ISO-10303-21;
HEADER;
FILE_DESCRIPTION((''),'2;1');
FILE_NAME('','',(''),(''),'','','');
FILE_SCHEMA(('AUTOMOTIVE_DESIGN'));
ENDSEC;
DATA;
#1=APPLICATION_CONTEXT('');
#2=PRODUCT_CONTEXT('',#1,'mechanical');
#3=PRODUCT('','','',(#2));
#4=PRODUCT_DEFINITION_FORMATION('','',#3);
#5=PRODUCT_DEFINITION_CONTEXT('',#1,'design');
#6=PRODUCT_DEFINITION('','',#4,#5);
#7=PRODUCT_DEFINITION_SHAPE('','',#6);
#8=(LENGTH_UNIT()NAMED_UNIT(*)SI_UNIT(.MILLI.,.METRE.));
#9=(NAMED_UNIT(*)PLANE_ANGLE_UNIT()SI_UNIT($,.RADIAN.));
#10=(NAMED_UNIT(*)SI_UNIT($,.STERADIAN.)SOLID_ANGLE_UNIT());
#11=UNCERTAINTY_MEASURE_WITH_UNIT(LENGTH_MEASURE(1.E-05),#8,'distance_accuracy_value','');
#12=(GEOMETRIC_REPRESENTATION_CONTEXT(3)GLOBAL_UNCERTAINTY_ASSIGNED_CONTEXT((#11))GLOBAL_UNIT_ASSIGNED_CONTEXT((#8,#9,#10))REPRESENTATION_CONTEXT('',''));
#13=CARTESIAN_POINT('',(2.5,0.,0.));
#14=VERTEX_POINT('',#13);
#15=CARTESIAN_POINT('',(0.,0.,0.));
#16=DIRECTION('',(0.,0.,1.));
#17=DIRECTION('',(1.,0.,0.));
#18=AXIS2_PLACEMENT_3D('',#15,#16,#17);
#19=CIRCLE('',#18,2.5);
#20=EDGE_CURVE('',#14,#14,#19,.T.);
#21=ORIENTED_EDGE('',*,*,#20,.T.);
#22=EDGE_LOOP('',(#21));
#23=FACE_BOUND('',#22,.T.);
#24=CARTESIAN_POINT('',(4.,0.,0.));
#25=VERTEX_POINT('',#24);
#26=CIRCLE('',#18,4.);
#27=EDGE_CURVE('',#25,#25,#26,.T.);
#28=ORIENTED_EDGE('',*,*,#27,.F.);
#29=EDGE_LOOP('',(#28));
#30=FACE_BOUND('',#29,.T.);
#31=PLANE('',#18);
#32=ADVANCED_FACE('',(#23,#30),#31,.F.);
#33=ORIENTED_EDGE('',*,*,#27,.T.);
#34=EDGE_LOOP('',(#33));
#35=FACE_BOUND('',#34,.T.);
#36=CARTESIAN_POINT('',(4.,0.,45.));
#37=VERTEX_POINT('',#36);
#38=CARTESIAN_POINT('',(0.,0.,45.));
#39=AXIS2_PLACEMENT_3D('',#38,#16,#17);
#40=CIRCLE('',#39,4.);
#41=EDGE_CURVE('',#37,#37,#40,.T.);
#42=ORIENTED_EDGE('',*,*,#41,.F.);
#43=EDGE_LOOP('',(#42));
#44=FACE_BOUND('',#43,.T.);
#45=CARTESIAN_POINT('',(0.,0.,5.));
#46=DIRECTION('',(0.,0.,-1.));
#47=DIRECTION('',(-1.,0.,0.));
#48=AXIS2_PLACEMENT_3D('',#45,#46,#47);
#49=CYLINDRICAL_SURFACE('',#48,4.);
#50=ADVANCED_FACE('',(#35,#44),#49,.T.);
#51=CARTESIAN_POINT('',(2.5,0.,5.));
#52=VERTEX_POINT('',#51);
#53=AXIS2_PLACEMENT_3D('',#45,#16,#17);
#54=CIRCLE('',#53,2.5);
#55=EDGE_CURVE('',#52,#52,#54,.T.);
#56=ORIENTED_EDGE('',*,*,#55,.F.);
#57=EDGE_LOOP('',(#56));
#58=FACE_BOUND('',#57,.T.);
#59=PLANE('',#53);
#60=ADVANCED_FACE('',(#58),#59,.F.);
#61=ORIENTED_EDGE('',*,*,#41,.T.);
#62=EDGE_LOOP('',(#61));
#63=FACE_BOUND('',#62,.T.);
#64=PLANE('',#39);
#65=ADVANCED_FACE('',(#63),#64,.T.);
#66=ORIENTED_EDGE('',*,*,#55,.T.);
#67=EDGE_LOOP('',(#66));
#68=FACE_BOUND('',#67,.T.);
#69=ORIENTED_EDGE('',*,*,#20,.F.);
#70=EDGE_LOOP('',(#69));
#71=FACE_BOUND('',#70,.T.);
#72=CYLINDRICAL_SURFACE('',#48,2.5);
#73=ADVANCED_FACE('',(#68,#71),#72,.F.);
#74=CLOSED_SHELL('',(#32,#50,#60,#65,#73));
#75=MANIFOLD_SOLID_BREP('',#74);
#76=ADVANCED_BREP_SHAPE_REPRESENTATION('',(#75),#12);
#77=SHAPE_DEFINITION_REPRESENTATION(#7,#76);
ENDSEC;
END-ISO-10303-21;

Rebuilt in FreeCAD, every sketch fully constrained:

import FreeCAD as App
import Part
import Sketcher

V = App.Vector
Q = App.Units.Quantity

doc = App.newDocument("Part")
params = doc.addObject("Spreadsheet::Sheet", "Params")
for row, (alias, value) in enumerate([
    ("sketch1_diameter", "8 mm"),
    ("sketch1_diameter2", "5 mm"),
    ("pad1_length", "5 mm"),
    ("sketch2_diameter", "8 mm"),
    ("pad2_length", "40 mm"),
], start=1):
    params.set(f"A{row}", alias)
    params.set(f"B{row}", "=" + value)
    params.setAlias(f"B{row}", alias)

body = doc.addObject("PartDesign::Body", "Body")

sketch1 = body.newObject("Sketcher::SketchObject", "Sketch")
sketch1.AttachmentSupport = (doc.getObject("XY_Plane"), [""])
sketch1.MapMode = "FlatFace"
sketch1.addGeometry([
    Part.Circle(V(0, 0, 0), V(0, 0, 1), 4),
    Part.Circle(V(0, 0, 0), V(0, 0, 1), 2.5),
], False)
sketch1.addConstraint([
    Sketcher.Constraint("Coincident", 0, 3, -1, 1),
    Sketcher.Constraint("Coincident", 1, 3, -1, 1),
    Sketcher.Constraint("Diameter", 0, Q("8 mm")),
    Sketcher.Constraint("Diameter", 1, Q("5 mm")),
])
sketch1.setExpression("Constraints[2]", "Params.sketch1_diameter")
sketch1.setExpression("Constraints[3]", "Params.sketch1_diameter2")
pad1 = body.newObject("PartDesign::Pad", "Pad")
pad1.Profile = sketch1
pad1.setExpression("Length", "Params.pad1_length")

sketch2 = body.newObject("Sketcher::SketchObject", "Sketch001")
sketch2.AttachmentSupport = (doc.getObject("XY_Plane"), [""])
sketch2.MapMode = "FlatFace"
sketch2.AttachmentOffset = App.Placement(V(0, 0, 5), App.Rotation())
sketch2.addGeometry(Part.Circle(V(0, 0, 0), V(0, 0, 1), 4), False)
sketch2.addConstraint([
    Sketcher.Constraint("Coincident", 0, 3, -1, 1),
    Sketcher.Constraint("Diameter", 0, Q("8 mm")),
])
sketch2.setExpression("Constraints[1]", "Params.sketch2_diameter")
pad2 = body.newObject("PartDesign::Pad", "Pad001")
pad2.Profile = sketch2
pad2.setExpression("Length", "Params.pad2_length")

doc.recompute()
